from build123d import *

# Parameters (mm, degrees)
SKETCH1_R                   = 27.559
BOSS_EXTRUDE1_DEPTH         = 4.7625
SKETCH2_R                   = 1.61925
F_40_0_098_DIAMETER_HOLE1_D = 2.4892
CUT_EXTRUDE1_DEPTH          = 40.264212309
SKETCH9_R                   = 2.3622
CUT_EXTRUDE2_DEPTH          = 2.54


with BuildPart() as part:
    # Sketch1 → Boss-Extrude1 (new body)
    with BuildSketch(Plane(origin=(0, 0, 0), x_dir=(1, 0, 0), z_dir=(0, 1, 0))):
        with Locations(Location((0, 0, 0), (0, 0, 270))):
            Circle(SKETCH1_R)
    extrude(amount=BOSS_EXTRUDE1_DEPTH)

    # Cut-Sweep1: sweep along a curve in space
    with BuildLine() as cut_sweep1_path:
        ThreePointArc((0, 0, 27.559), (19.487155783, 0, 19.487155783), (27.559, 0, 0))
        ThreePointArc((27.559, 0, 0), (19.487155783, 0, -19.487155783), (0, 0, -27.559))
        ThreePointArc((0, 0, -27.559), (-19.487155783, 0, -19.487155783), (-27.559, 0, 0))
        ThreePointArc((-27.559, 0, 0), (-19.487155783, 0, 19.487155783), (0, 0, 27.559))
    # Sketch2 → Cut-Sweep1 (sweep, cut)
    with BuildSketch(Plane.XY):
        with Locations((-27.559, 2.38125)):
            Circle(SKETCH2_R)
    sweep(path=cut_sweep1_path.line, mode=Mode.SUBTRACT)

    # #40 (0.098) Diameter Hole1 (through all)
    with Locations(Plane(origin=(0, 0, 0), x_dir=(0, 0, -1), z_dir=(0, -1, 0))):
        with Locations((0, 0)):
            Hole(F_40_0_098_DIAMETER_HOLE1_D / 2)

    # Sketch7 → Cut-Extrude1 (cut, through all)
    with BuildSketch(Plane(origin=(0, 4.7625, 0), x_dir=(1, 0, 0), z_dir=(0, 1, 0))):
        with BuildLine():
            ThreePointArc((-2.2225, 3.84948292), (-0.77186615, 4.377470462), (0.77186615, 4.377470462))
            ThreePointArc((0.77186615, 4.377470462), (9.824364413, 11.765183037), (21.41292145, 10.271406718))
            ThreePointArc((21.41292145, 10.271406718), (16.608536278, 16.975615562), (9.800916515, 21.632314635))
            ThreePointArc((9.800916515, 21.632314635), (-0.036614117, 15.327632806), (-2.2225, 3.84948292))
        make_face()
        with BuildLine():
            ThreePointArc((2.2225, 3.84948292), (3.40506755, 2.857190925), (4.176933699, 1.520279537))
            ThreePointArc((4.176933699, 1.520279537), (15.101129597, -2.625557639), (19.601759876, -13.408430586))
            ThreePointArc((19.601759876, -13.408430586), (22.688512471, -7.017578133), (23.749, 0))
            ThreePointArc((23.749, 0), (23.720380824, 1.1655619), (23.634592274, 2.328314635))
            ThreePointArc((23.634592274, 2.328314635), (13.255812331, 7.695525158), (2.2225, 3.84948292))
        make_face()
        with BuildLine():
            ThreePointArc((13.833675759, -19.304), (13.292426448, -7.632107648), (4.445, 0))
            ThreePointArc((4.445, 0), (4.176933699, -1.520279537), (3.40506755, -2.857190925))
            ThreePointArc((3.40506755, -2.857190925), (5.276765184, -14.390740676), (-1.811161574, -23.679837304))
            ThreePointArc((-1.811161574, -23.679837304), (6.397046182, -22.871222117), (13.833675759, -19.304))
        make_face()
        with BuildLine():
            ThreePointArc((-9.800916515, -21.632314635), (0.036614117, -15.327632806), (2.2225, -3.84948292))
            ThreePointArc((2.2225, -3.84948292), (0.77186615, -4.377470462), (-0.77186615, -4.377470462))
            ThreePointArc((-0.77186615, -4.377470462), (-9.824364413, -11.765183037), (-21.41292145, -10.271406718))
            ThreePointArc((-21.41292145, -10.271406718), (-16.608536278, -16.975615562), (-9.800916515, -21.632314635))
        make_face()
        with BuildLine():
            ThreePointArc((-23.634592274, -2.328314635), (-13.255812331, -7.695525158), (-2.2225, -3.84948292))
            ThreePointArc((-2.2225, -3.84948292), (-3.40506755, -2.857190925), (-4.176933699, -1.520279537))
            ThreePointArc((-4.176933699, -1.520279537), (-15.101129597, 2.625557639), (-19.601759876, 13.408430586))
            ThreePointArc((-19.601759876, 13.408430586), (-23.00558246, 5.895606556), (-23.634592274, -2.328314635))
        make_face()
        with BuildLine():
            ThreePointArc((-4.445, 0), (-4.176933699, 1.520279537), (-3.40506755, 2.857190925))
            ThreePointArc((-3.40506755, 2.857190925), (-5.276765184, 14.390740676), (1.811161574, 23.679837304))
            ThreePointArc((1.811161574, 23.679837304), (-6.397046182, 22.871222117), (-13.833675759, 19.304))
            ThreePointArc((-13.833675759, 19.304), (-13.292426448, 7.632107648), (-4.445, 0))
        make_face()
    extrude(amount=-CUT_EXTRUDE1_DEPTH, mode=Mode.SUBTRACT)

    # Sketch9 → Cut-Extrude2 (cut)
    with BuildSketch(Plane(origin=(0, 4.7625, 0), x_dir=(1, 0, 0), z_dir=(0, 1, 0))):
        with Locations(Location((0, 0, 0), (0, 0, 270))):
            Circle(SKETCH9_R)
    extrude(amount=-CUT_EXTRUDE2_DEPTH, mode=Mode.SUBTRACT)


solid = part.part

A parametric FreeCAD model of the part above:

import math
import FreeCAD as App
import Part
import Sketcher

V = App.Vector
Q = App.Units.Quantity

doc = App.newDocument("Part")
body = doc.addObject("PartDesign::Body", "Body")

sketch1 = body.newObject("Sketcher::SketchObject", "Sketch")
sketch1.AttachmentSupport = (doc.getObject("XZ_Plane"), [""])
sketch1.MapMode = "FlatFace"
sketch1.addGeometry(Part.Circle(V(0, 0, 0), V(0, 0, 1), 28), False)
sketch1.addConstraint([
    Sketcher.Constraint("Coincident", 0, 3, -1, 1),
    Sketcher.Constraint("Diameter", 0, Q("2.17 in")),
])
pad1 = body.newObject("PartDesign::Pad", "Pad")
pad1.Profile = sketch1
pad1.Length = Q("0.1875 in")
pad1.Reversed = True

sketch2 = body.newObject("Sketcher::SketchObject", "Sketch001")
sketch2.AttachmentSupport = (doc.getObject("XY_Plane"), [""])
sketch2.MapMode = "FlatFace"
sketch2.addGeometry(Part.Circle(V(-27.6, 2.4, 0), V(0, 0, 1), 1.6), False)
sketch2.addConstraint([
    Sketcher.Constraint("Diameter", 0, Q("0.1275 in")),
    Sketcher.Constraint("DistanceX", 0, 3, -1, 1, Q("1.085 in")),
    Sketcher.Constraint("DistanceY", -1, 1, 0, 3, Q("0.09375 in")),
])

sketch3 = body.newObject("Sketcher::SketchObject", "Sketch002")
sketch3.AttachmentSupport = (doc.getObject("XZ_Plane"), [""])
sketch3.MapMode = "FlatFace"
sketch3.addGeometry([
    Part.ArcOfCircle(Part.Circle(V(0, 0, 0), V(0, 0, 1), 28), math.radians(0), math.radians(90)),
    Part.ArcOfCircle(Part.Circle(V(0, 0, 0), V(0, 0, 1), 28), math.radians(-90), math.radians(0)),
    Part.ArcOfCircle(Part.Circle(V(0, 0, 0), V(0, 0, 1), 28), math.radians(180), math.radians(270)),
    Part.ArcOfCircle(Part.Circle(V(0, 0, 0), V(0, 0, 1), 28), math.radians(90), math.radians(180)),
], False)
sketch3.addConstraint([
    Sketcher.Constraint("Tangent", 0, 1, 1, 2),
    Sketcher.Constraint("Tangent", 1, 1, 2, 2),
    Sketcher.Constraint("Tangent", 2, 1, 3, 2),
    Sketcher.Constraint("Tangent", 3, 1, 0, 2),
    Sketcher.Constraint("Coincident", 0, 3, -1, 1),
    Sketcher.Constraint("Equal", 0, 1),
    Sketcher.Constraint("PointOnObject", 0, 1, -1),
    Sketcher.Constraint("PointOnObject", 1, 1, -2),
    Sketcher.Constraint("PointOnObject", 2, 1, -1),
    Sketcher.Constraint("PointOnObject", 3, 1, -2),
    Sketcher.Constraint("Radius", 0, Q("1.085 in")),
])
doc.recompute()

subtractivepipe = body.newObject("PartDesign::SubtractivePipe", "SubtractivePipe")
subtractivepipe.Profile = sketch2
subtractivepipe.Spine = (sketch3, ["Edge1", "Edge2", "Edge3", "Edge4"])

sketch4 = body.newObject("Sketcher::SketchObject", "Sketch003")
sketch4.AttachmentSupport = (doc.getObject("XZ_Plane"), [""])
sketch4.MapMode = "FlatFace"
sketch4.addGeometry(Part.Circle(V(0, 0, 0), V(0, 0, 1), 1.2), False)
sketch4.addConstraint([
    Sketcher.Constraint("Coincident", 0, 3, -1, 1),
    Sketcher.Constraint("Diameter", 0, Q("0.098 in")),
])
doc.recompute()
hole = body.newObject("PartDesign::Hole", "Hole")
hole.Profile = sketch4
hole.ThreadType = "None"
hole.Diameter = Q("0.098 in")
hole.DepthType = "ThroughAll"

sketch5 = body.newObject("Sketcher::SketchObject", "Sketch004")
sketch5.AttachmentSupport = (doc.getObject("XZ_Plane"), [""])
sketch5.MapMode = "FlatFace"
sketch5.AttachmentOffset = App.Placement(V(0, 0, -0.1875 * 25.4), App.Rotation())
sketch5.addGeometry([
    Part.ArcOfCircle(Part.Circle(V(0, 0, 0), V(0, 0, 1), 4.4), math.radians(-120), math.radians(-80)),
    Part.ArcOfCircle(Part.Circle(V(13.9, 2.4, 0), V(0, 0, 1), 14.8), math.radians(-152), math.radians(-59)),
    Part.ArcOfCircle(Part.Circle(V(0, 0, 0), V(0, 0, 1), 23.7), math.radians(-66), math.radians(-26)),
    Part.ArcOfCircle(Part.Circle(V(12.2, -7, 0), V(0, 0, 1), 14.8), math.radians(168), math.radians(261)),
    Part.ArcOfCircle(Part.Circle(V(0, 0, 0), V(0, 0, 1), 4.4), math.radians(-60), math.radians(-20)),
    Part.ArcOfCircle(Part.Circle(V(4.8, 13.2, 0), V(0, 0, 1), 14.8), math.radians(-92), math.radians(1)),
    Part.ArcOfCircle(Part.Circle(V(0, 0, 0), V(0, 0, 1), 23.7), math.radians(0), math.radians(34)),
    Part.ArcOfCircle(Part.Circle(V(0, 0, 0), V(0, 0, 1), 23.7), math.radians(-5.63), math.radians(0)),
    Part.ArcOfCircle(Part.Circle(V(12.2, 7, 0), V(0, 0, 1), 14.8), math.radians(-132), math.radians(-39)),
    Part.ArcOfCircle(Part.Circle(V(0, 14.1, 0), V(0, 0, 1), 14.8), math.radians(-72), math.radians(21)),
    Part.ArcOfCircle(Part.Circle(V(0, 0, 0), V(0, 0, 1), 4.4), math.radians(0), math.radians(40)),
    Part.ArcOfCircle(Part.Circle(V(-9.1, 10.8, 0), V(0, 0, 1), 14.8), math.radians(-32), math.radians(61)),
    Part.ArcOfCircle(Part.Circle(V(0, 0, 0), V(0, 0, 1), 23.7), math.radians(54), math.radians(94)),
    Part.ArcOfCircle(Part.Circle(V(-12.2, 7, 0), V(0, 0, 1), 14.8), math.radians(-12), math.radians(81)),
    Part.ArcOfCircle(Part.Circle(V(0, 0, 0), V(0, 0, 1), 4.4), math.radians(60), math.radians(100)),
    Part.ArcOfCircle(Part.Circle(V(-13.9, -2.4, 0), V(0, 0, 1), 14.8), math.radians(28), math.radians(121)),
    Part.ArcOfCircle(Part.Circle(V(0, 0, 0), V(0, 0, 1), 23.7), math.radians(114), math.radians(154)),
    Part.ArcOfCircle(Part.Circle(V(-12.2, -7, 0), V(0, 0, 1), 14.8), math.radians(48), math.radians(141)),
    Part.ArcOfCircle(Part.Circle(V(0, 0, 0), V(0, 0, 1), 4.4), math.radians(120), math.radians(160)),
    Part.ArcOfCircle(Part.Circle(V(-4.8, -13.2, 0), V(0, 0, 1), 14.8), math.radians(88), math.radians(181)),
    Part.ArcOfCircle(Part.Circle(V(0, 0, 0), V(0, 0, 1), 23.7), math.radians(174), math.radians(214)),
    Part.ArcOfCircle(Part.Circle(V(0, 0, 0), V(0, 0, 1), 4.4), math.radians(-180), math.radians(-140)),
    Part.ArcOfCircle(Part.Circle(V(9.1, -10.8, 0), V(0, 0, 1), 14.8), math.radians(148), math.radians(241)),
    Part.ArcOfCircle(Part.Circle(V(0, 0, 0), V(0, 0, 1), 23.7), math.radians(-126), math.radians(-86)),
    Part.ArcOfCircle(Part.Circle(V(0, -14.1, 0), V(0, 0, 1), 14.8), math.radians(108), math.radians(201)),
], False)
sketch5.addConstraint([
    Sketcher.Constraint("Coincident", 0, 2, 1, 1),
    Sketcher.Constraint("Coincident", 1, 2, 2, 2),
    Sketcher.Constraint("Coincident", 2, 1, 3, 2),
    Sketcher.Constraint("Coincident", 3, 1, 0, 1),
    Sketcher.Constraint("Coincident", 4, 2, 5, 1),
    Sketcher.Constraint("Coincident", 5, 2, 6, 2),
    Sketcher.Constraint("Tangent", 6, 1, 7, 2),
    Sketcher.Constraint("Coincident", 7, 1, 8, 2),
    Sketcher.Constraint("Coincident", 8, 1, 4, 1),
    Sketcher.Constraint("Coincident", 9, 1, 10, 1),
    Sketcher.Constraint("Coincident", 10, 2, 11, 1),
    Sketcher.Constraint("Coincident", 11, 2, 12, 2),
    Sketcher.Constraint("Coincident", 12, 1, 9, 2),
    Sketcher.Constraint("Coincident", 13, 1, 14, 1),
    Sketcher.Constraint("Coincident", 14, 2, 15, 1),
    Sketcher.Constraint("Coincident", 15, 2, 16, 2),
    Sketcher.Constraint("Coincident", 16, 1, 13, 2),
    Sketcher.Constraint("Coincident", 17, 1, 18, 1),
    Sketcher.Constraint("Coincident", 18, 2, 19, 1),
    Sketcher.Constraint("Coincident", 19, 2, 20, 2),
    Sketcher.Constraint("Coincident", 20, 1, 17, 2),
    Sketcher.Constraint("Coincident", 21, 2, 22, 1),
    Sketcher.Constraint("Coincident", 22, 2, 23, 2),
    Sketcher.Constraint("Coincident", 23, 1, 24, 2),
    Sketcher.Constraint("Coincident", 24, 1, 21, 1),
    Sketcher.Constraint("Coincident", 0, 3, -1, 1),
    Sketcher.Constraint("Coincident", 2, 3, -1, 1),
    Sketcher.Constraint("Coincident", 4, 3, -1, 1),
    Sketcher.Constraint("Coincident", 6, 3, -1, 1),
    Sketcher.Constraint("Coincident", 10, 3, -1, 1),
    Sketcher.Constraint("Coincident", 12, 3, -1, 1),
    Sketcher.Constraint("Coincident", 14, 3, -1, 1),
    Sketcher.Constraint("Coincident", 16, 3, -1, 1),
    Sketcher.Constraint("Coincident", 18, 3, -1, 1),
    Sketcher.Constraint("Coincident", 20, 3, -1, 1),
    Sketcher.Constraint("Coincident", 21, 3, -1, 1),
    Sketcher.Constraint("Coincident", 23, 3, -1, 1),
    Sketcher.Constraint("Equal", 1, 3),
    Sketcher.Constraint("Equal", 0, 4),
    Sketcher.Constraint("Equal", 3, 5),
    Sketcher.Constraint("Equal", 2, 6),
    Sketcher.Constraint("Equal", 6, 7),
    Sketcher.Constraint("Equal", 5, 8),
    Sketcher.Constraint("Equal", 8, 9),
    Sketcher.Constraint("Equal", 4, 10),
    Sketcher.Constraint("Equal", 9, 11),
    Sketcher.Constraint("Equal", 7, 12),
    Sketcher.Constraint("Equal", 11, 13),
    Sketcher.Constraint("Equal", 10, 14),
    Sketcher.Constraint("Equal", 13, 15),
    Sketcher.Constraint("Equal", 12, 16),
    Sketcher.Constraint("Equal", 15, 17),
    Sketcher.Constraint("Equal", 14, 18),
    Sketcher.Constraint("Equal", 17, 19),
    Sketcher.Constraint("Equal", 16, 20),
    Sketcher.Constraint("Equal", 18, 21),
    Sketcher.Constraint("Equal", 19, 22),
    Sketcher.Constraint("Equal", 20, 23),
    Sketcher.Constraint("Equal", 22, 24),
    Sketcher.Constraint("Symmetric", 3, 3, 13, 3, -1, 1),
    Sketcher.Constraint("Symmetric", 1, 3, 15, 3, -1, 1),
    Sketcher.Constraint("Symmetric", 8, 3, 17, 3, -1, 1),
    Sketcher.Constraint("Symmetric", 5, 3, 19, 3, -1, 1),
    Sketcher.Constraint("Symmetric", 11, 3, 22, 3, -1, 1),
    Sketcher.Constraint("Symmetric", 9, 3, 24, 3, -1, 1),
    Sketcher.Constraint("Symmetric", 8, 3, 13, 3, -2),
    Sketcher.Constraint("PointOnObject", 9, 3, -2),
    Sketcher.Constraint("PointOnObject", 6, 1, -1),
    Sketcher.Constraint("PointOnObject", 9, 1, -1),
    Sketcher.Constraint("Horizontal", 3, 1, 8, 1),
    Sketcher.Constraint("Radius", 0, Q("0.175 in")),
    Sketcher.Constraint("Radius", 2, Q("0.935 in")),
    Sketcher.Constraint("DistanceY", -1, 1, 12, 1, Q("0.76 in")),
    Sketcher.Constraint("DistanceY", 3, 3, -1, 1, Q("0.2775 in")),
    Sketcher.Constraint("DistanceX", 8, 3, 5, 2, 7.3934),
    Sketcher.Constraint("DistanceX", 5, 3, 5, 2, 14.780302),
    Sketcher.Constraint("DistanceX", 13, 3, 11, 2, 10.397199),
    Sketcher.Constraint("DistanceY", -1, 1, 1, 3, 2.447918),
    Sketcher.Constraint("DistanceY", -1, 1, 11, 3, 10.798929),
    Sketcher.Constraint("DistanceY", 0, 2, -1, 1, 4.37747),
])
pocket1 = body.newObject("PartDesign::Pocket", "Pocket")
pocket1.Profile = sketch5
pocket1.Type = "ThroughAll"
pocket1.Reversed = True

sketch6 = body.newObject("Sketcher::SketchObject", "Sketch005")
sketch6.AttachmentSupport = (doc.getObject("XZ_Plane"), [""])
sketch6.MapMode = "FlatFace"
sketch6.AttachmentOffset = App.Placement(V(0, 0, -0.1875 * 25.4), App.Rotation())
sketch6.addGeometry(Part.Circle(V(0, 0, 0), V(0, 0, 1), 2.4), False)
sketch6.addConstraint([
    Sketcher.Constraint("Coincident", 0, 3, -1, 1),
    Sketcher.Constraint("Diameter", 0, Q("0.186 in")),
])
pocket2 = body.newObject("PartDesign::Pocket", "Pocket001")
pocket2.Profile = sketch6
pocket2.Length = Q("0.1 in")
pocket2.Reversed = True

doc.recompute()
